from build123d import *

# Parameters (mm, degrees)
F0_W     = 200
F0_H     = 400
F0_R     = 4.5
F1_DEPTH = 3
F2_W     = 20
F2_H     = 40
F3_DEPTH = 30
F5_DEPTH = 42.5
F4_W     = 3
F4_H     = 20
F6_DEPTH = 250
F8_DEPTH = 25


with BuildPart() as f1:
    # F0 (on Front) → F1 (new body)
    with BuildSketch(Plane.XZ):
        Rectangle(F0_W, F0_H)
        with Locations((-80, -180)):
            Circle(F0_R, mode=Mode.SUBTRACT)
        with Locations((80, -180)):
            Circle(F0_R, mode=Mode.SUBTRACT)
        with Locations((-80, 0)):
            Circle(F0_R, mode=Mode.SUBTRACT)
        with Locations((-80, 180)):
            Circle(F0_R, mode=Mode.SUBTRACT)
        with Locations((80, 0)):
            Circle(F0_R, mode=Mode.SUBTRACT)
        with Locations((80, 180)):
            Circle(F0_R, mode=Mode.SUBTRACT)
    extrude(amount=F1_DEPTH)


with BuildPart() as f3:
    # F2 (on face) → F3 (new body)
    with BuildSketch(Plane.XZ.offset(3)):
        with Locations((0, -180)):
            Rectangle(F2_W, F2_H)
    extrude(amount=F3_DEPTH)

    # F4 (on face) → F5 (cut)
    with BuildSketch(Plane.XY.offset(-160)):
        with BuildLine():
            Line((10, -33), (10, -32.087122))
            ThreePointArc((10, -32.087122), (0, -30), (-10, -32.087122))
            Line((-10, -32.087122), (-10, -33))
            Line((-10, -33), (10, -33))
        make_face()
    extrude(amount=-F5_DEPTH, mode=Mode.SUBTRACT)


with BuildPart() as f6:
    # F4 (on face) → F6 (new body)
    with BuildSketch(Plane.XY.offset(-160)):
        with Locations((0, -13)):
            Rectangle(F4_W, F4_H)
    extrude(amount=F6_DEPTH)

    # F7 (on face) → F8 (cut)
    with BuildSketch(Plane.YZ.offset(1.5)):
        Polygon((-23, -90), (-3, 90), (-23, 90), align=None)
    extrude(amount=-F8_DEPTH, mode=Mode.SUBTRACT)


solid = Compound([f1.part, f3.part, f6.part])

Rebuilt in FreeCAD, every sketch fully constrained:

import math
import FreeCAD as App
import Part
import Sketcher

V = App.Vector


def add_polygon(sketch, points):
    """Adds a closed chain of lines whose ends are joined by coincident constraints."""
    first, n = sketch.GeometryCount, len(points)
    for a, b in zip(points, points[1:] + points[:1]):
        sketch.addGeometry(Part.LineSegment(App.Vector(*a, 0), App.Vector(*b, 0)), False)
    for i in range(n):
        sketch.addConstraint(Sketcher.Constraint("Coincident", first + i, 2, first + (i + 1) % n, 1))

doc = App.newDocument("Part")
params = doc.addObject("Spreadsheet::Sheet", "Params")
for row, (alias, value) in enumerate([
    ("sketch1_diameter", "9 mm"),
    ("sketch1_width", "200 mm"),
    ("sketch1_height", "400 mm"),
    ("pad1_length", "3 mm"),
    ("sketch2_width", "20 mm"),
    ("sketch2_height", "40 mm"),
    ("pad2_length", "30 mm"),
    ("sketch3_width", "20 mm"),
    ("pocket1_length", "42.5 mm"),
    ("sketch4_width", "3 mm"),
    ("sketch4_height", "20 mm"),
    ("pad3_length", "250 mm"),
    ("sketch5_width", "20 mm"),
    ("sketch5_height", "180 mm"),
    ("pocket2_length", "25 mm"),
], start=1):
    params.set(f"A{row}", alias)
    params.set(f"B{row}", "=" + value)
    params.setAlias(f"B{row}", alias)

body = doc.addObject("PartDesign::Body", "Body")

sketch1 = body.newObject("Sketcher::SketchObject", "Sketch")
sketch1.AttachmentSupport = (doc.getObject("XZ_Plane"), [""])
sketch1.MapMode = "FlatFace"
add_polygon(sketch1, [(-100, 200), (-100, -200), (100, -200), (100, 200)])
sketch1.addGeometry(Part.Circle(V(-80, -180, 0), V(0, 0, 1), 4.5), False)
sketch1.addGeometry(Part.Circle(V(80, -180, 0), V(0, 0, 1), 4.5), False)
sketch1.addGeometry(Part.Circle(V(-80, 0, 0), V(0, 0, 1), 4.5), False)
sketch1.addGeometry(Part.Circle(V(-80, 180, 0), V(0, 0, 1), 4.5), False)
sketch1.addGeometry(Part.Circle(V(80, 0, 0), V(0, 0, 1), 4.5), False)
sketch1.addGeometry(Part.Circle(V(80, 180, 0), V(0, 0, 1), 4.5), False)
sketch1.addConstraint(Sketcher.Constraint("Vertical", 0))
sketch1.addConstraint(Sketcher.Constraint("Horizontal", 1))
sketch1.addConstraint(Sketcher.Constraint("Vertical", 2))
sketch1.addConstraint(Sketcher.Constraint("Horizontal", 3))
sketch1.addConstraint(Sketcher.Constraint("Equal", 4, 5))
sketch1.addConstraint(Sketcher.Constraint("Equal", 5, 6))
sketch1.addConstraint(Sketcher.Constraint("Equal", 6, 7))
sketch1.addConstraint(Sketcher.Constraint("Equal", 7, 8))
sketch1.addConstraint(Sketcher.Constraint("Equal", 8, 9))
sketch1.addConstraint(Sketcher.Constraint("Symmetric", 5, 3, 7, 3, -1, 1))
sketch1.addConstraint(Sketcher.Constraint("Symmetric", 6, 3, 8, 3, -1, 1))
sketch1.addConstraint(Sketcher.Constraint("Symmetric", 4, 3, 9, 3, -1, 1))
sketch1.addConstraint(Sketcher.Constraint("Symmetric", 0, 2, 2, 2, -1, 1))
sketch1.addConstraint(Sketcher.Constraint("Symmetric", 4, 3, 5, 3, -2))
sketch1.addConstraint(Sketcher.Constraint("PointOnObject", 6, 3, -1))
sketch1.addConstraint(Sketcher.Constraint("Vertical", 4, 3, 6, 3))
sketch1.addConstraint(Sketcher.Constraint("Diameter", 4, 9.0))
sketch1.addConstraint(Sketcher.Constraint("DistanceX", 1, 1, 1, 2, 200.0))
sketch1.addConstraint(Sketcher.Constraint("DistanceY", 0, 2, 0, 1, 400.0))
sketch1.addConstraint(Sketcher.Constraint("DistanceX", 4, 3, -1, 1, 80.0))
sketch1.addConstraint(Sketcher.Constraint("DistanceY", 4, 3, -1, 1, 180.0))
sketch1.setExpression("Constraints[20]", "Params.sketch1_diameter")
sketch1.setExpression("Constraints[21]", "Params.sketch1_width")
sketch1.setExpression("Constraints[22]", "Params.sketch1_height")
pad1 = body.newObject("PartDesign::Pad", "Pad")
pad1.Profile = sketch1
pad1.setExpression("Length", "Params.pad1_length")
body2 = doc.addObject("PartDesign::Body", "Body001")

sketch2 = body2.newObject("Sketcher::SketchObject", "Sketch001")
sketch2.AttachmentSupport = (doc.getObject("XZ_Plane001"), [""])
sketch2.MapMode = "FlatFace"
sketch2.AttachmentOffset = App.Placement(V(0, 0, 3), App.Rotation())
add_polygon(sketch2, [(-10, -160), (-10, -200), (10, -200), (10, -160)])
sketch2.addConstraint(Sketcher.Constraint("Vertical", 0))
sketch2.addConstraint(Sketcher.Constraint("Horizontal", 1))
sketch2.addConstraint(Sketcher.Constraint("Vertical", 2))
sketch2.addConstraint(Sketcher.Constraint("Horizontal", 3))
sketch2.addConstraint(Sketcher.Constraint("DistanceX", 1, 1, 1, 2, 20.0))
sketch2.addConstraint(Sketcher.Constraint("DistanceY", 0, 2, 0, 1, 40.0))
sketch2.addConstraint(Sketcher.Constraint("DistanceX", 0, 2, -1, 1, 10.0))
sketch2.addConstraint(Sketcher.Constraint("DistanceY", 0, 2, -1, 1, 200.0))
sketch2.setExpression("Constraints[8]", "Params.sketch2_width")
sketch2.setExpression("Constraints[9]", "Params.sketch2_height")
pad2 = body2.newObject("PartDesign::Pad", "Pad001")
pad2.Profile = sketch2
pad2.setExpression("Length", "Params.pad2_length")

sketch3 = body2.newObject("Sketcher::SketchObject", "Sketch002")
sketch3.AttachmentSupport = (doc.getObject("XY_Plane001"), [""])
sketch3.MapMode = "FlatFace"
sketch3.AttachmentOffset = App.Placement(V(0, 0, -160), App.Rotation())
sketch3.addGeometry(Part.LineSegment(V(10, -33, 0), V(10, -32.1, 0)), False)
sketch3.addGeometry(Part.ArcOfCircle(Part.Circle(V(0, -55, 0), V(0, 0, 1), 25), math.radians(66), math.radians(114)), False)
sketch3.addGeometry(Part.LineSegment(V(-10, -32.1, 0), V(-10, -33, 0)), False)
sketch3.addGeometry(Part.LineSegment(V(-10, -33, 0), V(10, -33, 0)), False)
sketch3.addConstraint(Sketcher.Constraint("Coincident", 0, 2, 1, 1))
sketch3.addConstraint(Sketcher.Constraint("Coincident", 1, 2, 2, 1))
sketch3.addConstraint(Sketcher.Constraint("Coincident", 2, 2, 3, 1))
sketch3.addConstraint(Sketcher.Constraint("Coincident", 3, 2, 0, 1))
sketch3.addConstraint(Sketcher.Constraint("Vertical", 0))
sketch3.addConstraint(Sketcher.Constraint("Vertical", 2))
sketch3.addConstraint(Sketcher.Constraint("Horizontal", 3))
sketch3.addConstraint(Sketcher.Constraint("Symmetric", 0, 2, 1, 2, -2))
sketch3.addConstraint(Sketcher.Constraint("DistanceX", 3, 1, 3, 2, 20.0))
sketch3.addConstraint(Sketcher.Constraint("DistanceY", 2, 2, -1, 1, 33.0))
sketch3.addConstraint(Sketcher.Constraint("Radius", 1, 24.999995))
sketch3.addConstraint(Sketcher.Constraint("DistanceY", 0, 1, 0, 2, 0.912878))
sketch3.setExpression("Constraints[8]", "Params.sketch3_width")
pocket1 = body2.newObject("PartDesign::Pocket", "Pocket")
pocket1.Profile = sketch3
pocket1.setExpression("Length", "Params.pocket1_length")
body3 = doc.addObject("PartDesign::Body", "Body002")

sketch4 = body3.newObject("Sketcher::SketchObject", "Sketch003")
sketch4.AttachmentSupport = (doc.getObject("XY_Plane002"), [""])
sketch4.MapMode = "FlatFace"
sketch4.AttachmentOffset = App.Placement(V(0, 0, -160), App.Rotation())
add_polygon(sketch4, [(-1.5, -3), (-1.5, -23), (1.5, -23), (1.5, -3)])
sketch4.addConstraint(Sketcher.Constraint("Vertical", 0))
sketch4.addConstraint(Sketcher.Constraint("Horizontal", 1))
sketch4.addConstraint(Sketcher.Constraint("Vertical", 2))
sketch4.addConstraint(Sketcher.Constraint("Horizontal", 3))
sketch4.addConstraint(Sketcher.Constraint("DistanceX", 1, 1, 1, 2, 3.0))
sketch4.addConstraint(Sketcher.Constraint("DistanceY", 0, 2, 0, 1, 20.0))
sketch4.addConstraint(Sketcher.Constraint("DistanceY", 0, 2, -1, 1, 23.0))
sketch4.addConstraint(Sketcher.Constraint("DistanceX", 0, 2, -1, 1, 1.5))
sketch4.setExpression("Constraints[8]", "Params.sketch4_width")
sketch4.setExpression("Constraints[9]", "Params.sketch4_height")
pad3 = body3.newObject("PartDesign::Pad", "Pad002")
pad3.Profile = sketch4
pad3.setExpression("Length", "Params.pad3_length")

sketch5 = body3.newObject("Sketcher::SketchObject", "Sketch004")
sketch5.AttachmentSupport = (doc.getObject("YZ_Plane002"), [""])
sketch5.MapMode = "FlatFace"
sketch5.AttachmentOffset = App.Placement(V(0, 0, 1.5), App.Rotation())
add_polygon(sketch5, [(-23, -90), (-3, 90), (-23, 90)])
sketch5.addConstraint(Sketcher.Constraint("Horizontal", 1))
sketch5.addConstraint(Sketcher.Constraint("Vertical", 2))
sketch5.addConstraint(Sketcher.Constraint("DistanceX", 1, 2, 1, 1, 20.0))
sketch5.addConstraint(Sketcher.Constraint("DistanceY", 2, 2, 2, 1, 180.0))
sketch5.addConstraint(Sketcher.Constraint("DistanceX", 0, 2, -1, 1, 3.0))
sketch5.addConstraint(Sketcher.Constraint("DistanceY", -1, 1, 0, 2, 90.0))
sketch5.setExpression("Constraints[5]", "Params.sketch5_width")
sketch5.setExpression("Constraints[6]", "Params.sketch5_height")
pocket2 = body3.newObject("PartDesign::Pocket", "Pocket001")
pocket2.Profile = sketch5
pocket2.setExpression("Length", "Params.pocket2_length")

doc.recompute()
